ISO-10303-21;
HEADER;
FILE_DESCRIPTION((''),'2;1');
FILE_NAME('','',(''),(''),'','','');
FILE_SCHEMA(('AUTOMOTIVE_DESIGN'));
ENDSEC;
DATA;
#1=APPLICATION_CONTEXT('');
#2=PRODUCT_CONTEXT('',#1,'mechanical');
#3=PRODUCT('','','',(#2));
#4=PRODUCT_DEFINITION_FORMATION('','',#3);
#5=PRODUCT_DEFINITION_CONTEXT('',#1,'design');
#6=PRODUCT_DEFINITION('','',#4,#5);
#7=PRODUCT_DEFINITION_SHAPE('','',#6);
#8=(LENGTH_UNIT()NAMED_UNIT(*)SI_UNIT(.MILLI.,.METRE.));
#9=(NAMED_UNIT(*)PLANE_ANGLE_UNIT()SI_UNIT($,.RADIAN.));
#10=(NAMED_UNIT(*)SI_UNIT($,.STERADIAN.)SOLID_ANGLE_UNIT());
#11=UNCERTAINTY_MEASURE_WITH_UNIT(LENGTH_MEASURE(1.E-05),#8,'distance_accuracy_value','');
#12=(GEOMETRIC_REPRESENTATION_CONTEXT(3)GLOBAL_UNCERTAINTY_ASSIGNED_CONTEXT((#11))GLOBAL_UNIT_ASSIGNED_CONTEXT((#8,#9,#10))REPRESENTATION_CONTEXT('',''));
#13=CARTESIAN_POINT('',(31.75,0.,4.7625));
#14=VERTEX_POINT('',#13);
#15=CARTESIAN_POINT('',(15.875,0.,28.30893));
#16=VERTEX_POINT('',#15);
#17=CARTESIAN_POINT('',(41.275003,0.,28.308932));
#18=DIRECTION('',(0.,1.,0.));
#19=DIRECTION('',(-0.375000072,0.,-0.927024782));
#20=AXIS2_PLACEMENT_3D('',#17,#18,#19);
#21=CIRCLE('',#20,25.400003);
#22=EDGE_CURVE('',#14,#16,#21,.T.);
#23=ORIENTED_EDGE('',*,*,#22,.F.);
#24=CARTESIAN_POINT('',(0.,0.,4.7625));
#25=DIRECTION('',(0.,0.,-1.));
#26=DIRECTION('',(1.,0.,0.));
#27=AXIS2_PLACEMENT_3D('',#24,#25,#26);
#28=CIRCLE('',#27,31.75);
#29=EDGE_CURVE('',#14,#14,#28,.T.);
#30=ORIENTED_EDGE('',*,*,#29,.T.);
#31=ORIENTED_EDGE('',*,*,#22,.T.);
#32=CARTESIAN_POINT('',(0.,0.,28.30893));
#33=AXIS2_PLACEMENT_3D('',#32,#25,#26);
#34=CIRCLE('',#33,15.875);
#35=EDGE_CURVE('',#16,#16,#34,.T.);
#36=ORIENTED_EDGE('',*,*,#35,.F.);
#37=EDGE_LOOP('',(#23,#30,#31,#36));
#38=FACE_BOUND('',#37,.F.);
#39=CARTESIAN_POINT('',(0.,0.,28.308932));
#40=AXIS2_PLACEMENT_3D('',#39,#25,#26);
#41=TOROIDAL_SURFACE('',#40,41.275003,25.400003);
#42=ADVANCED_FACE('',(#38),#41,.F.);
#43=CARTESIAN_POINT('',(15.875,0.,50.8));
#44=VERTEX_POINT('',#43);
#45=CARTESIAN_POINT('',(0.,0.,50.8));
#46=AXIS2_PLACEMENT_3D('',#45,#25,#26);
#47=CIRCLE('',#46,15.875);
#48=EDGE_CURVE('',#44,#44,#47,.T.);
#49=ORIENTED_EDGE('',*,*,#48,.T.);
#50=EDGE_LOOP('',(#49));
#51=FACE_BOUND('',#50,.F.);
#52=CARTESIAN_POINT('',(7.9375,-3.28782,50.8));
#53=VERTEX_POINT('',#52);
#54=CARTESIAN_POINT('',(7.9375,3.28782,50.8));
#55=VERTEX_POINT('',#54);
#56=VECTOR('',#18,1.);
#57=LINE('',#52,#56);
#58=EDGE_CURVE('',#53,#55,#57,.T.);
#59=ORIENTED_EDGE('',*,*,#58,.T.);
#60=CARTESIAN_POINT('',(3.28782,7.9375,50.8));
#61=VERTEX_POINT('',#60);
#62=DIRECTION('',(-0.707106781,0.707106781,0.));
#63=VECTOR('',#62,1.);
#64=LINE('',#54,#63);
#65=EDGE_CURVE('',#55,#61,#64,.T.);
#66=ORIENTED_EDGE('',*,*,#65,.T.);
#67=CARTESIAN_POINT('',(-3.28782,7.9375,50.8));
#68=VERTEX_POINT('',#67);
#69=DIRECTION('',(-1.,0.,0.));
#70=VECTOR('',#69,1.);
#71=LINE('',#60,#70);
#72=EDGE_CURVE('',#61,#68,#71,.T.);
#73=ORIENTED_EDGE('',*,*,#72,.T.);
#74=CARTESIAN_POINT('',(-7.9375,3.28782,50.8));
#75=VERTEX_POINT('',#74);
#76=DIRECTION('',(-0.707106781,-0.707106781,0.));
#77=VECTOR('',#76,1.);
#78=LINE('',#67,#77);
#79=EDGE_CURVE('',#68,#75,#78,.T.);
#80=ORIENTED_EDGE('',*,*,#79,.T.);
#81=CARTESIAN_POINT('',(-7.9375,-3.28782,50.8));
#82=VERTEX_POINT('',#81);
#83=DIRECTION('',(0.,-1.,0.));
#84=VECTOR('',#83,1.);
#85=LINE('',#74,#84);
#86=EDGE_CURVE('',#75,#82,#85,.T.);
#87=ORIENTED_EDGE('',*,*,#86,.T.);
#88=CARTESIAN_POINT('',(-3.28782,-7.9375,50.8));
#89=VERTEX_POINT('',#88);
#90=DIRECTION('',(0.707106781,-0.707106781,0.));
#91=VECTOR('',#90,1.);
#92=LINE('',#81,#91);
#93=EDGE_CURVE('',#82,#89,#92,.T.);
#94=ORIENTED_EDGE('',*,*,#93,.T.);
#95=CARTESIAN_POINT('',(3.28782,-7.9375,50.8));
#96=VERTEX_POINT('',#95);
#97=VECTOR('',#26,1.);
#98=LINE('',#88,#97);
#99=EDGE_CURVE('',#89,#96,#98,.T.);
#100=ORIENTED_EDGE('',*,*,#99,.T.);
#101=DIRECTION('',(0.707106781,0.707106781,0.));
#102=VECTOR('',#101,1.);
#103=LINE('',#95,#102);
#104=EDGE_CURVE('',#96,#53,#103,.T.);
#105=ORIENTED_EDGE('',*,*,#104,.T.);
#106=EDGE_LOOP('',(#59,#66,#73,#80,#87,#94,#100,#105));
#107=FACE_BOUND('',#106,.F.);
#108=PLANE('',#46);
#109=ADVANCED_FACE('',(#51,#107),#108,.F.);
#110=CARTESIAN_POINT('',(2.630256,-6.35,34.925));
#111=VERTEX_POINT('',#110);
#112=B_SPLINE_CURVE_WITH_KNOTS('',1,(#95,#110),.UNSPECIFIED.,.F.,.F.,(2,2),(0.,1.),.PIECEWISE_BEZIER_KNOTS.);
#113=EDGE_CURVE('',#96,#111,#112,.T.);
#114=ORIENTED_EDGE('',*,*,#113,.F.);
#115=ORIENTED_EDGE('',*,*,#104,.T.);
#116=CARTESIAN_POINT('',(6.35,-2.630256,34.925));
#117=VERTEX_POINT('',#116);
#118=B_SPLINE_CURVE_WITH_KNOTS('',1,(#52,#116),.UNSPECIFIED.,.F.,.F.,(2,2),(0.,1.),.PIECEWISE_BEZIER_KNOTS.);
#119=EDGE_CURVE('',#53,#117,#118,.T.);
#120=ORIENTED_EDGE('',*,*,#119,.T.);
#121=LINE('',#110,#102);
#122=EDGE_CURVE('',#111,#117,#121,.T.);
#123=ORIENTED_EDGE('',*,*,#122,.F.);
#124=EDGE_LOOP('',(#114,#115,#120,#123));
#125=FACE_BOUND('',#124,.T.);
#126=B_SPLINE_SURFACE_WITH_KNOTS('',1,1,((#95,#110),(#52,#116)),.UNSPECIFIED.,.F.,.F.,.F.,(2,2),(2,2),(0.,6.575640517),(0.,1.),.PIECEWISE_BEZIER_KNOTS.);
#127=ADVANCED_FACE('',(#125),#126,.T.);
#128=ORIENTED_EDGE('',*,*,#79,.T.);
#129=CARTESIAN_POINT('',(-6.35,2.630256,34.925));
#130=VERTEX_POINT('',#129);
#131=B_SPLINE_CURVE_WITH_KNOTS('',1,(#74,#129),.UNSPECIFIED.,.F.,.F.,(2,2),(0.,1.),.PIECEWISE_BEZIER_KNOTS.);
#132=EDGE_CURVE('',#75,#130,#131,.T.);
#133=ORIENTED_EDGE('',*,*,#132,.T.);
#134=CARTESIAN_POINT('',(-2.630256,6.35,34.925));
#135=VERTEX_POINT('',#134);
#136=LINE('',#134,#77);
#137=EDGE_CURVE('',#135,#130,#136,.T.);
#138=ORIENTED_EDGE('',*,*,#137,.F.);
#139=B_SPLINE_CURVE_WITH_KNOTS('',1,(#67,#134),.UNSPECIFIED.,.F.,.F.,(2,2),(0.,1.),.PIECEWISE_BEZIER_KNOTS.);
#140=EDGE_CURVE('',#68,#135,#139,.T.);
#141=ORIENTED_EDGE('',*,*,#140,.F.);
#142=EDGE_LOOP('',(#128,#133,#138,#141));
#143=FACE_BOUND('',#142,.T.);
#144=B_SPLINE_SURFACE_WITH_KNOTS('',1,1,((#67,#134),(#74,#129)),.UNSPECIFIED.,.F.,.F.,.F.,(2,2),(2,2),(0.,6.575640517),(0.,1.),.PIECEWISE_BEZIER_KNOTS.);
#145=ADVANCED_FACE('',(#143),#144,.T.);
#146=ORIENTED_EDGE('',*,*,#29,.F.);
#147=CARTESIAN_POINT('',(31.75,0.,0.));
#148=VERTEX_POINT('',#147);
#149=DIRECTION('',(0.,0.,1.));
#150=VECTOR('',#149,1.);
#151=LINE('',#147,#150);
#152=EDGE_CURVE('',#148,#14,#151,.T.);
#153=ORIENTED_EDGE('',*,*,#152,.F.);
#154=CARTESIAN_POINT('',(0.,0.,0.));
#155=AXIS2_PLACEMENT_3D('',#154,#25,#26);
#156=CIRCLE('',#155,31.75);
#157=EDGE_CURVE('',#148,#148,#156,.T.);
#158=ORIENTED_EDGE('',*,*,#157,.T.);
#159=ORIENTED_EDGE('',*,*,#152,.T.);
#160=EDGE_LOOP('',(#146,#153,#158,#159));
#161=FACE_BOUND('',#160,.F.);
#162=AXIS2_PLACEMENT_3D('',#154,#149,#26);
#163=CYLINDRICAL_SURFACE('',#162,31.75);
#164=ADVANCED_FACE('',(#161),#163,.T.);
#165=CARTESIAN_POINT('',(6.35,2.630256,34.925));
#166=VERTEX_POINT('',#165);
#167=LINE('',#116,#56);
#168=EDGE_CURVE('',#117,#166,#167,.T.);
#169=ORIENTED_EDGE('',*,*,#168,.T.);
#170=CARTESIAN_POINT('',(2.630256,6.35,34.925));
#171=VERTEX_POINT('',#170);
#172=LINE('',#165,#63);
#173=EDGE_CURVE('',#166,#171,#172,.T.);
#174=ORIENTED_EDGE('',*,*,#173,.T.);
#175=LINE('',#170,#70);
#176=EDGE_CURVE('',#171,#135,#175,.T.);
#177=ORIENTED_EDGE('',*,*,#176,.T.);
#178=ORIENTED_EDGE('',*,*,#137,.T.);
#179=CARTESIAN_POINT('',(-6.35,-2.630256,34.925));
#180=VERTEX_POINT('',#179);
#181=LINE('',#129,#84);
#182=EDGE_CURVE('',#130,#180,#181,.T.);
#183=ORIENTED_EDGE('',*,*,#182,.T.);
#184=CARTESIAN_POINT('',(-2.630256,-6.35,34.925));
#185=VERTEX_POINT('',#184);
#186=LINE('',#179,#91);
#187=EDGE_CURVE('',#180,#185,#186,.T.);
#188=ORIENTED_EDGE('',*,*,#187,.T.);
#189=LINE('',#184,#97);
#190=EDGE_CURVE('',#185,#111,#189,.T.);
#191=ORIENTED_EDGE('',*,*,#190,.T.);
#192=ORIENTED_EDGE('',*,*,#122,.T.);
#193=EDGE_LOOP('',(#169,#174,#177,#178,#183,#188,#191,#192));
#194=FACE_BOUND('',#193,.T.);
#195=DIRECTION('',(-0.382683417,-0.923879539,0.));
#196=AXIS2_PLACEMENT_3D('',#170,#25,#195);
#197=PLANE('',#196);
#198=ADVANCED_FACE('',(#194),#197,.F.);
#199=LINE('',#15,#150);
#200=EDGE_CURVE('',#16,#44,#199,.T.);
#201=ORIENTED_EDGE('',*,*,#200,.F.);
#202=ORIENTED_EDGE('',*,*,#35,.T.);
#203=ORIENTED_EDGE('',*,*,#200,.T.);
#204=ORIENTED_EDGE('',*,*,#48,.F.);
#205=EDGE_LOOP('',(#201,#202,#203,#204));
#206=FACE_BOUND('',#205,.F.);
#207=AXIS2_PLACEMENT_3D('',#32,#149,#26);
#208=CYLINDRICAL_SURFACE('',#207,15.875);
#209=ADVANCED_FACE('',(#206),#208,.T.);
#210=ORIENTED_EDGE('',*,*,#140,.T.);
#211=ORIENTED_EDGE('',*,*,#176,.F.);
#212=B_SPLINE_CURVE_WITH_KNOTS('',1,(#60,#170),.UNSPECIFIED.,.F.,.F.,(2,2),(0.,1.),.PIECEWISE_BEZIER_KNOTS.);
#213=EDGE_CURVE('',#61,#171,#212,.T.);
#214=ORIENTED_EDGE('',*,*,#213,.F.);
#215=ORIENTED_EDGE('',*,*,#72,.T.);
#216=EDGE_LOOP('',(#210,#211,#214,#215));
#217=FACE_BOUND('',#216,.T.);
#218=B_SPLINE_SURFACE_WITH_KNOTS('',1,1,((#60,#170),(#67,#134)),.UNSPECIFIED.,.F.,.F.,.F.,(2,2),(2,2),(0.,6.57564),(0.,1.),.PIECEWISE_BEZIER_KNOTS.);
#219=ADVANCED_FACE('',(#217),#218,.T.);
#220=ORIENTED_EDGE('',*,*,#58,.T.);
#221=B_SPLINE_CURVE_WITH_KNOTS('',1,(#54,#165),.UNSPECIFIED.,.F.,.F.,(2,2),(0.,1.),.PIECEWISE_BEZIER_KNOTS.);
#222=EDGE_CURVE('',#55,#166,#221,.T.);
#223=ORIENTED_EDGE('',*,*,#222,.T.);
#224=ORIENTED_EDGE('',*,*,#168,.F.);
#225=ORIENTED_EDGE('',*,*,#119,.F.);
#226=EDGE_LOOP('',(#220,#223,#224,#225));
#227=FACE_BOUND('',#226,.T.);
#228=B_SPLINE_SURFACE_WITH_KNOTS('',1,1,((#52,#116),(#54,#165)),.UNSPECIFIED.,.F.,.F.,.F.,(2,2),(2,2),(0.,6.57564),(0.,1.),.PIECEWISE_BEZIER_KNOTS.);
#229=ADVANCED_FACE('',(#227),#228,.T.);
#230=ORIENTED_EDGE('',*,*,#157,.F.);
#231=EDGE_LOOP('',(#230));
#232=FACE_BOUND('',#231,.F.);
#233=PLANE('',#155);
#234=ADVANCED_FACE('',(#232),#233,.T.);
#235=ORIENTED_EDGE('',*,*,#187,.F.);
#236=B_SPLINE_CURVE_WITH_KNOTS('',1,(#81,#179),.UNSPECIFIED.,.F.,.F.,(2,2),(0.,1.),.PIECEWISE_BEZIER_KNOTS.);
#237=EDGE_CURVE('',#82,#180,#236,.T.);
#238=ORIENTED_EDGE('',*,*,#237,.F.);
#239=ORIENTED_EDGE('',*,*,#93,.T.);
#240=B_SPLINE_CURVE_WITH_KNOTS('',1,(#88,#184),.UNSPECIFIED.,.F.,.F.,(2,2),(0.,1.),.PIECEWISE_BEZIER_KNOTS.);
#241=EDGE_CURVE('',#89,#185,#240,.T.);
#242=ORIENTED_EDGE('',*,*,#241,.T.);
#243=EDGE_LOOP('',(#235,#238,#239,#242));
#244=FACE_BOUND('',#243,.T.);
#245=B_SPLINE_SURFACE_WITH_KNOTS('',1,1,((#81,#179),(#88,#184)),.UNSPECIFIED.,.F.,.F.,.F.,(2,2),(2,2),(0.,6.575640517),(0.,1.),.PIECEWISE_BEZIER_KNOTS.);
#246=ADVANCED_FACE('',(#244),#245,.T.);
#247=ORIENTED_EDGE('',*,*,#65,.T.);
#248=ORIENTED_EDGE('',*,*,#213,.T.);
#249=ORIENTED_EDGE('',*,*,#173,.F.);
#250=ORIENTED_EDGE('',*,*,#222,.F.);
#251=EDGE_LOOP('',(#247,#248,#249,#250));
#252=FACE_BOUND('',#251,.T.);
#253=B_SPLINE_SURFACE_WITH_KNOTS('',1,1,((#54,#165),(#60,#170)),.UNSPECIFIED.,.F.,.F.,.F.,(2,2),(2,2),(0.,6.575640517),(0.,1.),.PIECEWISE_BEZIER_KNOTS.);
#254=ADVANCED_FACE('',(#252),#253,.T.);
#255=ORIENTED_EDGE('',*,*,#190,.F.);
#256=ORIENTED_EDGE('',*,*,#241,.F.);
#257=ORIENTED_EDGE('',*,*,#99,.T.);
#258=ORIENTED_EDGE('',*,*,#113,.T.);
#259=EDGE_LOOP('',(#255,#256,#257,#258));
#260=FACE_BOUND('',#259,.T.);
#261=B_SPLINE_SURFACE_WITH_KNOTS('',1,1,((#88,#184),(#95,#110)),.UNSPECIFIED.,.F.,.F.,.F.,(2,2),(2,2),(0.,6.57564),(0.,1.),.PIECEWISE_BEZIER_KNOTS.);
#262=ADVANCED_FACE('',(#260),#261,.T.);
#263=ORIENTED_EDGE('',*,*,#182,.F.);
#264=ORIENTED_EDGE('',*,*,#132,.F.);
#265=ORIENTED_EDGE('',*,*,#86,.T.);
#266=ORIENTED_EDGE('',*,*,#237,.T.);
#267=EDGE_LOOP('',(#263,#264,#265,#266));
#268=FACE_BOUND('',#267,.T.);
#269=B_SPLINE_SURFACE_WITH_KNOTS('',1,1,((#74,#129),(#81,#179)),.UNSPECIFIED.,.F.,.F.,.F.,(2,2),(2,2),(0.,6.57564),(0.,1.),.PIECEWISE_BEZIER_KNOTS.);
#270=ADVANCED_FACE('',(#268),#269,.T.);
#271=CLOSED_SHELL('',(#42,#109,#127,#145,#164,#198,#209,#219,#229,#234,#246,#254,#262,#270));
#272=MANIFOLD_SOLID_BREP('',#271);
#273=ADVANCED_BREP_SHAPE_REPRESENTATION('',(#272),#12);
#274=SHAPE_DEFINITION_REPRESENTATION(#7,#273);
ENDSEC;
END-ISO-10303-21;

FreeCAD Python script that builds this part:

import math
import FreeCAD as App
import Part
import Sketcher
Q = App.Units.Quantity

doc = App.newDocument("Part")
body = doc.addObject("PartDesign::Body", "Body")

# Sketch on XZ plane
sketch1 = doc.addObject("Sketcher::SketchObject", "Sketch")
body.addObject(sketch1)
sketch1.AttachmentSupport = (doc.XZ_Plane, [""])
sketch1.MapMode = "FlatFace"
sketch1.addGeometry(Part.LineSegment(App.Vector(0, 50.8, 0), App.Vector(0, 0, 0)), False)
sketch1.addGeometry(Part.LineSegment(App.Vector(0, 0, 0), App.Vector(31.8, 0, 0)), False)
sketch1.addGeometry(Part.LineSegment(App.Vector(31.8, 0, 0), App.Vector(31.8, 4.8, 0)), False)
sketch1.addGeometry(Part.ArcOfCircle(Part.Circle(App.Vector(41.3, 28.3, 0), App.Vector(0, 0, 1), 25.4), math.radians(-180), math.radians(-112)), False)
sketch1.addGeometry(Part.LineSegment(App.Vector(15.9, 28.3, 0), App.Vector(15.9, 50.8, 0)), False)
sketch1.addGeometry(Part.LineSegment(App.Vector(15.9, 50.8, 0), App.Vector(0, 50.8, 0)), False)
sketch1.addConstraint(Sketcher.Constraint("Coincident", 0, 2, 1, 1))
sketch1.addConstraint(Sketcher.Constraint("Coincident", 1, 2, 2, 1))
sketch1.addConstraint(Sketcher.Constraint("Coincident", 2, 2, 3, 2))
sketch1.addConstraint(Sketcher.Constraint("Tangent", 3, 1, 4, 1))
sketch1.addConstraint(Sketcher.Constraint("Coincident", 4, 2, 5, 1))
sketch1.addConstraint(Sketcher.Constraint("Coincident", 5, 2, 0, 1))
sketch1.addConstraint(Sketcher.Constraint("Vertical", 0))
sketch1.addConstraint(Sketcher.Constraint("Horizontal", 1))
sketch1.addConstraint(Sketcher.Constraint("Vertical", 2))
sketch1.addConstraint(Sketcher.Constraint("Vertical", 4))
sketch1.addConstraint(Sketcher.Constraint("Horizontal", 5))
sketch1.addConstraint(Sketcher.Constraint("Coincident", 0, 2, -1, 1))
sketch1.addConstraint(Sketcher.Constraint("Radius", 3, Q("1.0000001 in")))
sketch1.addConstraint(Sketcher.Constraint("DistanceY", 0, 2, 0, 1, Q("2 in")))
sketch1.addConstraint(Sketcher.Constraint("DistanceX", 1, 1, 1, 2, Q("1.25 in")))
sketch1.addConstraint(Sketcher.Constraint("DistanceX", 5, 2, 5, 1, Q("0.625 in")))
sketch1.addConstraint(Sketcher.Constraint("DistanceY", 2, 1, 2, 2, Q("0.1875 in")))
revolution = doc.addObject("PartDesign::Revolution", "Revolution")
body.addObject(revolution)
revolution.Profile = sketch1
revolution.ReferenceAxis = (sketch1, ["V_Axis"])
revolution.Angle = 360

# Sketch on XY plane
sketch2 = doc.addObject("Sketcher::SketchObject", "Sketch001")
body.addObject(sketch2)
sketch2.AttachmentSupport = (doc.XY_Plane, [""])
sketch2.MapMode = "FlatFace"
sketch2.AttachmentOffset = App.Placement(App.Vector(0, 0, 2 * 25.4), App.Rotation())
sketch2.addGeometry(Part.LineSegment(App.Vector(3, 8, 0), App.Vector(-3, 8, 0)), False)
sketch2.addGeometry(Part.LineSegment(App.Vector(-3, 8, 0), App.Vector(-8, 3, 0)), False)
sketch2.addGeometry(Part.LineSegment(App.Vector(-8, 3, 0), App.Vector(-8, -3, 0)), False)
sketch2.addGeometry(Part.LineSegment(App.Vector(-8, -3, 0), App.Vector(-3, -8, 0)), False)
sketch2.addGeometry(Part.LineSegment(App.Vector(-3, -8, 0), App.Vector(3, -8, 0)), False)
sketch2.addGeometry(Part.LineSegment(App.Vector(3, -8, 0), App.Vector(8, -3, 0)), False)
sketch2.addGeometry(Part.LineSegment(App.Vector(8, -3, 0), App.Vector(8, 3, 0)), False)
sketch2.addGeometry(Part.LineSegment(App.Vector(8, 3, 0), App.Vector(3, 8, 0)), False)
sketch2.addConstraint(Sketcher.Constraint("Coincident", 0, 2, 1, 1))
sketch2.addConstraint(Sketcher.Constraint("Coincident", 1, 2, 2, 1))
sketch2.addConstraint(Sketcher.Constraint("Coincident", 2, 2, 3, 1))
sketch2.addConstraint(Sketcher.Constraint("Coincident", 3, 2, 4, 1))
sketch2.addConstraint(Sketcher.Constraint("Coincident", 4, 2, 5, 1))
sketch2.addConstraint(Sketcher.Constraint("Coincident", 5, 2, 6, 1))
sketch2.addConstraint(Sketcher.Constraint("Coincident", 6, 2, 7, 1))
sketch2.addConstraint(Sketcher.Constraint("Coincident", 7, 2, 0, 1))
sketch2.addConstraint(Sketcher.Constraint("Horizontal", 0))
sketch2.addConstraint(Sketcher.Constraint("Vertical", 2))
sketch2.addConstraint(Sketcher.Constraint("Horizontal", 4))
sketch2.addConstraint(Sketcher.Constraint("Vertical", 6))
sketch2.addConstraint(Sketcher.Constraint("Symmetric", 0, 2, 4, 2, -1, 1))
sketch2.addConstraint(Sketcher.Constraint("Symmetric", 1, 2, 5, 2, -1, 1))
sketch2.addConstraint(Sketcher.Constraint("Perpendicular", 1, 3))
sketch2.addConstraint(Sketcher.Constraint("Perpendicular", 5, 7))
sketch2.addConstraint(Sketcher.Constraint("Horizontal", 2, 2, 5, 2))
sketch2.addConstraint(Sketcher.Constraint("Horizontal", 1, 2, 6, 2))
sketch2.addConstraint(Sketcher.Constraint("Vertical", 0, 2, 3, 2))
sketch2.addConstraint(Sketcher.Constraint("Equal", 4, 2))
sketch2.addConstraint(Sketcher.Constraint("DistanceY", -1, 1, 0, 2, Q("0.3125 in")))
sketch2.addConstraint(Sketcher.Constraint("DistanceX", 0, 2, 0, 1, Q("6.57564 mm")))

# Sketch on XY plane
sketch3 = doc.addObject("Sketcher::SketchObject", "Sketch002")
body.addObject(sketch3)
sketch3.AttachmentSupport = (doc.XY_Plane, [""])
sketch3.MapMode = "FlatFace"
sketch3.AttachmentOffset = App.Placement(App.Vector(0, 0, 1.375 * 25.4), App.Rotation())
sketch3.addGeometry(Part.LineSegment(App.Vector(3, 6, 0), App.Vector(-3, 6, 0)), False)
sketch3.addGeometry(Part.LineSegment(App.Vector(-3, 6, 0), App.Vector(-6, 3, 0)), False)
sketch3.addGeometry(Part.LineSegment(App.Vector(-6, 3, 0), App.Vector(-6, -3, 0)), False)
sketch3.addGeometry(Part.LineSegment(App.Vector(-6, -3, 0), App.Vector(-3, -6, 0)), False)
sketch3.addGeometry(Part.LineSegment(App.Vector(-3, -6, 0), App.Vector(3, -6, 0)), False)
sketch3.addGeometry(Part.LineSegment(App.Vector(3, -6, 0), App.Vector(6, -3, 0)), False)
sketch3.addGeometry(Part.LineSegment(App.Vector(6, -3, 0), App.Vector(6, 3, 0)), False)
sketch3.addGeometry(Part.LineSegment(App.Vector(6, 3, 0), App.Vector(3, 6, 0)), False)
sketch3.addConstraint(Sketcher.Constraint("Coincident", 0, 2, 1, 1))
sketch3.addConstraint(Sketcher.Constraint("Coincident", 1, 2, 2, 1))
sketch3.addConstraint(Sketcher.Constraint("Coincident", 2, 2, 3, 1))
sketch3.addConstraint(Sketcher.Constraint("Coincident", 3, 2, 4, 1))
sketch3.addConstraint(Sketcher.Constraint("Coincident", 4, 2, 5, 1))
sketch3.addConstraint(Sketcher.Constraint("Coincident", 5, 2, 6, 1))
sketch3.addConstraint(Sketcher.Constraint("Coincident", 6, 2, 7, 1))
sketch3.addConstraint(Sketcher.Constraint("Coincident", 7, 2, 0, 1))
sketch3.addConstraint(Sketcher.Constraint("Horizontal", 0))
sketch3.addConstraint(Sketcher.Constraint("Vertical", 2))
sketch3.addConstraint(Sketcher.Constraint("Horizontal", 4))
sketch3.addConstraint(Sketcher.Constraint("Vertical", 6))
sketch3.addConstraint(Sketcher.Constraint("Symmetric", 0, 2, 4, 2, -1, 1))
sketch3.addConstraint(Sketcher.Constraint("Symmetric", 1, 2, 5, 2, -1, 1))
sketch3.addConstraint(Sketcher.Constraint("Perpendicular", 1, 3))
sketch3.addConstraint(Sketcher.Constraint("Perpendicular", 5, 7))
sketch3.addConstraint(Sketcher.Constraint("Horizontal", 2, 2, 5, 2))
sketch3.addConstraint(Sketcher.Constraint("Horizontal", 1, 2, 6, 2))
sketch3.addConstraint(Sketcher.Constraint("Vertical", 0, 2, 3, 2))
sketch3.addConstraint(Sketcher.Constraint("Equal", 4, 2))
sketch3.addConstraint(Sketcher.Constraint("DistanceY", 3, 2, 0, 2, Q("0.5 in")))
sketch3.addConstraint(Sketcher.Constraint("DistanceX", 0, 2, 0, 1, Q("5.260512 mm")))

subtractiveloft = doc.addObject("PartDesign::SubtractiveLoft", "SubtractiveLoft")
body.addObject(subtractiveloft)
subtractiveloft.Profile = sketch2
subtractiveloft.Sections = [sketch3]

doc.recompute()
